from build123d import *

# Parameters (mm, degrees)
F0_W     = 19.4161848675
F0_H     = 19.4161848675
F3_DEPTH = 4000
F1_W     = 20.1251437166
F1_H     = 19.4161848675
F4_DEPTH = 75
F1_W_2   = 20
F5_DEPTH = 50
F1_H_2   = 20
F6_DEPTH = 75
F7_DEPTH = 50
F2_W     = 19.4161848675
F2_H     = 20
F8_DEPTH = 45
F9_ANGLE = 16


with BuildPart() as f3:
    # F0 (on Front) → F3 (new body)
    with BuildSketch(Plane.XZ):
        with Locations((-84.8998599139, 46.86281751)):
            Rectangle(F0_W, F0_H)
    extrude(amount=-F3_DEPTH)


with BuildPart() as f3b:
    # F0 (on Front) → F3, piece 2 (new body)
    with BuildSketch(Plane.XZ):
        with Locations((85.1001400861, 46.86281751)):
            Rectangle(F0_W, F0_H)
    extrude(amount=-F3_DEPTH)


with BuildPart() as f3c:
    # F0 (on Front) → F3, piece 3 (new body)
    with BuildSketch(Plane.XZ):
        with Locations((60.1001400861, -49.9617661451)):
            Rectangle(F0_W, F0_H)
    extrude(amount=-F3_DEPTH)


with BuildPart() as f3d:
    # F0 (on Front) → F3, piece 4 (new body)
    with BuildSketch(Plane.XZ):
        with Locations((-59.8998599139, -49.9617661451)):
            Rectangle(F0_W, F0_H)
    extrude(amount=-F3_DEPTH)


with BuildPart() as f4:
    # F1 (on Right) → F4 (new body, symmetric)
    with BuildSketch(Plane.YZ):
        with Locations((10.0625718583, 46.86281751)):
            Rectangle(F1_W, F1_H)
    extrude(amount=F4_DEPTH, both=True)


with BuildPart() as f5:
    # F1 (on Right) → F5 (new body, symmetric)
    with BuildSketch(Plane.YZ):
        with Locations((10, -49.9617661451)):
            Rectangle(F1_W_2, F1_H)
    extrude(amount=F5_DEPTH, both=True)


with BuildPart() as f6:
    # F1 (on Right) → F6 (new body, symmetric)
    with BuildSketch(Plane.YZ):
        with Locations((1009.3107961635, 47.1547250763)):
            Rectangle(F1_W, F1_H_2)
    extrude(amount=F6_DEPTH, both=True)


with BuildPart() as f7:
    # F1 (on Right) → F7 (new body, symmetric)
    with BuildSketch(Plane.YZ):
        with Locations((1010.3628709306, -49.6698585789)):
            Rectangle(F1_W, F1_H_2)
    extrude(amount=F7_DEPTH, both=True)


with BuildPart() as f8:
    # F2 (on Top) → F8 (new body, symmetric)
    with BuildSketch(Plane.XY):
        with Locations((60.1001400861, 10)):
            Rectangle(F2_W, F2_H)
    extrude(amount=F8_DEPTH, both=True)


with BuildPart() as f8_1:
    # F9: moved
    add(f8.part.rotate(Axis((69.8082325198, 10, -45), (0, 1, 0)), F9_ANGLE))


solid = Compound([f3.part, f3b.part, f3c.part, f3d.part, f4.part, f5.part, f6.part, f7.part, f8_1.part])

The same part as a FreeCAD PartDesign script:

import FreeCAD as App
import Part
import Sketcher
from FreeCAD import Vector


def add_polygon(sketch, points):
    """Adds a closed chain of lines whose ends are joined by coincident constraints."""
    first, n = sketch.GeometryCount, len(points)
    for a, b in zip(points, points[1:] + points[:1]):
        sketch.addGeometry(Part.LineSegment(App.Vector(*a, 0), App.Vector(*b, 0)), False)
    for i in range(n):
        sketch.addConstraint(Sketcher.Constraint("Coincident", first + i, 2, first + (i + 1) % n, 1))

doc = App.newDocument("Part")
params = doc.addObject("Spreadsheet::Sheet", "Params")
for row, (alias, value) in enumerate([
    ("pad1_length", "4000 mm"),
    ("pad2_length", "4000 mm"),
    ("pad3_length", "4000 mm"),
    ("pad4_length", "4000 mm"),
    ("pad5_length", "150 mm"),
    ("sketch6_width", "20 mm"),
    ("pad6_length", "100 mm"),
    ("sketch7_height", "20 mm"),
    ("pad7_length", "150 mm"),
    ("sketch8_height", "20 mm"),
    ("pad8_length", "100 mm"),
    ("sketch9_height", "20 mm"),
    ("pad9_length", "90 mm"),
], start=1):
    params.set(f"A{row}", alias)
    params.set(f"B{row}", "=" + value)
    params.setAlias(f"B{row}", alias)

body = doc.addObject("PartDesign::Body", "Body")

# Sketch on XZ plane
sketch1 = body.newObject("Sketcher::SketchObject", "Sketch")
sketch1.AttachmentSupport = (doc.getObject("XZ_Plane"), [""])
sketch1.MapMode = "FlatFace"
add_polygon(sketch1, [(-95, 57), (-95, 37), (-75, 37), (-75, 57)])  # lines 0-3
sketch1.addConstraint([
    Sketcher.Constraint("Vertical", 0),
    Sketcher.Constraint("Horizontal", 1),
    Sketcher.Constraint("Vertical", 2),
    Sketcher.Constraint("Horizontal", 3),
    Sketcher.Constraint("Equal", 3, 0),
    Sketcher.Constraint("DistanceX", 1, 1, 1, 2, 19.416185),
    Sketcher.Constraint("DistanceY", -1, 1, 2, 2, 56.57091),
    Sketcher.Constraint("DistanceX", 0, 2, -1, 1, 94.607952),
])
pad1 = body.newObject("PartDesign::Pad", "Pad")
pad1.Profile = sketch1
pad1.setExpression("Length", "Params.pad1_length")
pad1.Reversed = True
body2 = doc.addObject("PartDesign::Body", "Body001")

# Sketch on XZ plane
sketch2 = body2.newObject("Sketcher::SketchObject", "Sketch001")
sketch2.AttachmentSupport = (doc.getObject("XZ_Plane001"), [""])
sketch2.MapMode = "FlatFace"
add_polygon(sketch2, [(75, 57), (75, 37), (95, 37), (95, 57)])  # lines 0-3
sketch2.addConstraint([
    Sketcher.Constraint("Vertical", 0),
    Sketcher.Constraint("Horizontal", 1),
    Sketcher.Constraint("Vertical", 2),
    Sketcher.Constraint("Horizontal", 3),
    Sketcher.Constraint("Equal", 3, 0),
    Sketcher.Constraint("DistanceX", 1, 1, 1, 2, 19.416185),
    Sketcher.Constraint("DistanceY", -1, 1, 2, 2, 56.57091),
    Sketcher.Constraint("DistanceX", -1, 1, 0, 2, 75.392048),
])
pad2 = body2.newObject("PartDesign::Pad", "Pad001")
pad2.Profile = sketch2
pad2.setExpression("Length", "Params.pad2_length")
pad2.Reversed = True
body3 = doc.addObject("PartDesign::Body", "Body002")

# Sketch on XZ plane
sketch3 = body3.newObject("Sketcher::SketchObject", "Sketch002")
sketch3.AttachmentSupport = (doc.getObject("XZ_Plane002"), [""])
sketch3.MapMode = "FlatFace"
add_polygon(sketch3, [(50, -40), (50, -60), (70, -60), (70, -40)])  # lines 0-3
sketch3.addConstraint([
    Sketcher.Constraint("Vertical", 0),
    Sketcher.Constraint("Horizontal", 1),
    Sketcher.Constraint("Vertical", 2),
    Sketcher.Constraint("Horizontal", 3),
    Sketcher.Constraint("Equal", 3, 0),
    Sketcher.Constraint("DistanceX", 1, 1, 1, 2, 19.416185),
    Sketcher.Constraint("DistanceY", 0, 2, -1, 1, 59.669859),
    Sketcher.Constraint("DistanceX", -1, 1, 0, 2, 50.392048),
])
pad3 = body3.newObject("PartDesign::Pad", "Pad002")
pad3.Profile = sketch3
pad3.setExpression("Length", "Params.pad3_length")
pad3.Reversed = True
body4 = doc.addObject("PartDesign::Body", "Body003")

# Sketch on XZ plane
sketch4 = body4.newObject("Sketcher::SketchObject", "Sketch003")
sketch4.AttachmentSupport = (doc.getObject("XZ_Plane003"), [""])
sketch4.MapMode = "FlatFace"
add_polygon(sketch4, [(-70, -40), (-70, -60), (-50, -60), (-50, -40)])  # lines 0-3
sketch4.addConstraint([
    Sketcher.Constraint("Vertical", 0),
    Sketcher.Constraint("Horizontal", 1),
    Sketcher.Constraint("Vertical", 2),
    Sketcher.Constraint("Horizontal", 3),
    Sketcher.Constraint("Equal", 3, 0),
    Sketcher.Constraint("DistanceX", 1, 1, 1, 2, 19.416185),
    Sketcher.Constraint("DistanceY", 0, 2, -1, 1, 59.669859),
    Sketcher.Constraint("DistanceX", 0, 2, -1, 1, 69.607952),
])
pad4 = body4.newObject("PartDesign::Pad", "Pad003")
pad4.Profile = sketch4
pad4.setExpression("Length", "Params.pad4_length")
pad4.Reversed = True
body5 = doc.addObject("PartDesign::Body", "Body004")

# Sketch on YZ plane
sketch5 = body5.newObject("Sketcher::SketchObject", "Sketch004")
sketch5.AttachmentSupport = (doc.getObject("YZ_Plane004"), [""])
sketch5.MapMode = "FlatFace"
add_polygon(sketch5, [(0, 57), (0, 37), (20, 37), (20, 57)])  # lines 0-3
sketch5.addConstraint([
    Sketcher.Constraint("Vertical", 0),
    Sketcher.Constraint("Horizontal", 1),
    Sketcher.Constraint("Vertical", 2),
    Sketcher.Constraint("Horizontal", 3),
    Sketcher.Constraint("PointOnObject", 0, 2, -2),
    Sketcher.Constraint("DistanceX", 1, 1, 1, 2, 20.125144),
    Sketcher.Constraint("DistanceY", 0, 2, 0, 1, 19.416185),
    Sketcher.Constraint("DistanceY", -1, 1, 2, 2, 56.57091),
])
pad5 = body5.newObject("PartDesign::Pad", "Pad004")
pad5.Profile = sketch5
pad5.setExpression("Length", "Params.pad5_length")
pad5.Midplane = True
body6 = doc.addObject("PartDesign::Body", "Body005")

# Sketch on YZ plane
sketch6 = body6.newObject("Sketcher::SketchObject", "Sketch005")
sketch6.AttachmentSupport = (doc.getObject("YZ_Plane005"), [""])
sketch6.MapMode = "FlatFace"
add_polygon(sketch6, [(0, -40), (0, -60), (20, -60), (20, -40)])  # lines 0-3
sketch6.addConstraint([
    Sketcher.Constraint("Vertical", 0),
    Sketcher.Constraint("Horizontal", 1),
    Sketcher.Constraint("Vertical", 2),
    Sketcher.Constraint("Horizontal", 3),
    Sketcher.Constraint("PointOnObject", 0, 2, -2),
    Sketcher.Constraint("DistanceX", 1, 1, 1, 2, 20.0),
    Sketcher.Constraint("DistanceY", 0, 2, 0, 1, 19.416185),
    Sketcher.Constraint("DistanceY", 0, 2, -1, 1, 59.669859),
])
sketch6.setExpression("Constraints[9]", "Params.sketch6_width")
pad6 = body6.newObject("PartDesign::Pad", "Pad005")
pad6.Profile = sketch6
pad6.setExpression("Length", "Params.pad6_length")
pad6.Midplane = True
body7 = doc.addObject("PartDesign::Body", "Body006")

# Sketch on YZ plane
sketch7 = body7.newObject("Sketcher::SketchObject", "Sketch006")
sketch7.AttachmentSupport = (doc.getObject("YZ_Plane006"), [""])
sketch7.MapMode = "FlatFace"
add_polygon(sketch7, [(999, 57), (999, 37), (1019, 37), (1019, 57)])  # lines 0-3
sketch7.addConstraint([
    Sketcher.Constraint("Vertical", 0),
    Sketcher.Constraint("Horizontal", 1),
    Sketcher.Constraint("Vertical", 2),
    Sketcher.Constraint("Horizontal", 3),
    Sketcher.Constraint("DistanceY", 0, 2, 0, 1, 20.0),
    Sketcher.Constraint("DistanceX", 1, 1, 1, 2, 20.125144),
    Sketcher.Constraint("DistanceX", -1, 1, 1, 2, 1019.373368),
    Sketcher.Constraint("DistanceY", -1, 1, 0, 2, 37.154725),
])
sketch7.setExpression("Constraints[8]", "Params.sketch7_height")
pad7 = body7.newObject("PartDesign::Pad", "Pad006")
pad7.Profile = sketch7
pad7.setExpression("Length", "Params.pad7_length")
pad7.Midplane = True
body8 = doc.addObject("PartDesign::Body", "Body007")

# Sketch on YZ plane
sketch8 = body8.newObject("Sketcher::SketchObject", "Sketch007")
sketch8.AttachmentSupport = (doc.getObject("YZ_Plane007"), [""])
sketch8.MapMode = "FlatFace"
add_polygon(sketch8, [(1000, -40), (1000, -60), (1020, -60), (1020, -40)])  # lines 0-3
sketch8.addConstraint([
    Sketcher.Constraint("Vertical", 0),
    Sketcher.Constraint("Horizontal", 1),
    Sketcher.Constraint("Vertical", 2),
    Sketcher.Constraint("Horizontal", 3),
    Sketcher.Constraint("DistanceY", 0, 2, 0, 1, 20.0),
    Sketcher.Constraint("DistanceX", -1, 1, 0, 2, 1000.300299),
    Sketcher.Constraint("DistanceX", 1, 1, 1, 2, 20.125144),
    Sketcher.Constraint("DistanceY", 0, 2, -1, 1, 59.669859),
])
sketch8.setExpression("Constraints[8]", "Params.sketch8_height")
pad8 = body8.newObject("PartDesign::Pad", "Pad007")
pad8.Profile = sketch8
pad8.setExpression("Length", "Params.pad8_length")
pad8.Midplane = True
body9 = doc.addObject("PartDesign::Body", "Body008")

# Sketch on XY plane
sketch9 = body9.newObject("Sketcher::SketchObject", "Sketch008")
sketch9.AttachmentSupport = (doc.getObject("XY_Plane008"), [""])
sketch9.MapMode = "FlatFace"
add_polygon(sketch9, [(50, 20), (50, 0), (70, 0), (70, 20)])  # lines 0-3
sketch9.addConstraint([
    Sketcher.Constraint("Vertical", 0),
    Sketcher.Constraint("Horizontal", 1),
    Sketcher.Constraint("Vertical", 2),
    Sketcher.Constraint("Horizontal", 3),
    Sketcher.Constraint("PointOnObject", 0, 2, -1),
    Sketcher.Constraint("DistanceY", 0, 2, 0, 1, 20.0),
    Sketcher.Constraint("DistanceX", 1, 1, 1, 2, 19.416185),
    Sketcher.Constraint("DistanceX", -1, 1, 0, 2, 50.392048),
])
sketch9.setExpression("Constraints[9]", "Params.sketch9_height")
pad9 = body9.newObject("PartDesign::Pad", "Pad008")
pad9.Profile = sketch9
pad9.setExpression("Length", "Params.pad9_length")
pad9.Midplane = True
body10 = doc.addObject("PartDesign::Body", "Body009")
doc.recompute()

body9.Placement = App.Placement(Vector(15.107934, 0, 17.498533), App.Rotation(Vector(0, 1, 0), 16))
boolean = body10.newObject("PartDesign::Boolean", "Boolean")
boolean.Type = "Fuse"
boolean.addObjects([body9])

doc.recompute()
